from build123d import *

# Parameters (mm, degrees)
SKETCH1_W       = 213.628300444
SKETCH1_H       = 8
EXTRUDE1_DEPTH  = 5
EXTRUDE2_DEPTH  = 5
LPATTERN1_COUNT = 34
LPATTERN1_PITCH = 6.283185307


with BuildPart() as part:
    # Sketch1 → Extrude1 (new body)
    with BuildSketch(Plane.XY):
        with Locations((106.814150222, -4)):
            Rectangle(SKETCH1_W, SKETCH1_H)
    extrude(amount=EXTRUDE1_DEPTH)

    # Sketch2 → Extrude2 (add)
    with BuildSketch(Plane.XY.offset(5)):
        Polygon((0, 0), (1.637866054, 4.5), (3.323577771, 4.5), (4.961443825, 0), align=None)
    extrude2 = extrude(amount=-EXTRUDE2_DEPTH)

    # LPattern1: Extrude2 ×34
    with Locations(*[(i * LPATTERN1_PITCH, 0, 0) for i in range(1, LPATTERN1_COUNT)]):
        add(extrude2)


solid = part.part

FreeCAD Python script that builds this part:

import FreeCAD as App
import Part
import Sketcher
from FreeCAD import Vector
Q = App.Units.Quantity

doc = App.newDocument("Part")
params = doc.addObject("Spreadsheet::Sheet", "Params")
for row, (alias, value) in enumerate([
    ("sketch1_height", "8 mm"),
    ("pad1_length", "5 mm"),
    ("pad2_length", "5 mm"),
    ("linearpattern_pitch", "6.283185 mm"),
], start=1):
    params.set(f"A{row}", alias)
    params.set(f"B{row}", "=" + value)
    params.setAlias(f"B{row}", alias)

body = doc.addObject("PartDesign::Body", "Body")

# Sketch on XY plane
sketch1 = doc.addObject("Sketcher::SketchObject", "Sketch")
body.addObject(sketch1)
sketch1.AttachmentSupport = (doc.XY_Plane, [""])
sketch1.MapMode = "FlatFace"
sketch1.addGeometry(Part.LineSegment(Vector(0, 0, 0), Vector(0, -8, 0)), False)
sketch1.addGeometry(Part.LineSegment(Vector(0, -8, 0), Vector(214, -8, 0)), False)
sketch1.addGeometry(Part.LineSegment(Vector(214, -8, 0), Vector(214, 0, 0)), False)
sketch1.addGeometry(Part.LineSegment(Vector(214, 0, 0), Vector(0, 0, 0)), False)
sketch1.addConstraint(Sketcher.Constraint("Coincident", 0, 2, 1, 1))
sketch1.addConstraint(Sketcher.Constraint("Coincident", 1, 2, 2, 1))
sketch1.addConstraint(Sketcher.Constraint("Coincident", 2, 2, 3, 1))
sketch1.addConstraint(Sketcher.Constraint("Coincident", 3, 2, 0, 1))
sketch1.addConstraint(Sketcher.Constraint("Vertical", 0))
sketch1.addConstraint(Sketcher.Constraint("Horizontal", 1))
sketch1.addConstraint(Sketcher.Constraint("Vertical", 2))
sketch1.addConstraint(Sketcher.Constraint("Horizontal", 3))
sketch1.addConstraint(Sketcher.Constraint("Coincident", 3, 2, -1, 1))
sketch1.addConstraint(Sketcher.Constraint("DistanceY", 0, 2, 0, 1, Q("8 mm")))
sketch1.addConstraint(Sketcher.Constraint("DistanceX", 1, 1, 1, 2, Q("213.6283 mm")))
sketch1.setExpression("Constraints[9]", "Params.sketch1_height")
pad1 = doc.addObject("PartDesign::Pad", "Pad")
body.addObject(pad1)
pad1.Profile = sketch1
pad1.setExpression("Length", "Params.pad1_length")

# Sketch on XY plane
sketch2 = doc.addObject("Sketcher::SketchObject", "Sketch001")
body.addObject(sketch2)
sketch2.AttachmentSupport = (doc.XY_Plane, [""])
sketch2.MapMode = "FlatFace"
sketch2.AttachmentOffset = App.Placement(Vector(0, 0, 5), App.Rotation())
sketch2.addGeometry(Part.LineSegment(Vector(1.6, 4.5, 0), Vector(0, 0, 0)), False)
sketch2.addGeometry(Part.LineSegment(Vector(0, 0, 0), Vector(5, 0, 0)), False)
sketch2.addGeometry(Part.LineSegment(Vector(5, 0, 0), Vector(3.3, 4.5, 0)), False)
sketch2.addGeometry(Part.LineSegment(Vector(3.3, 4.5, 0), Vector(1.6, 4.5, 0)), False)
sketch2.addConstraint(Sketcher.Constraint("Coincident", 0, 2, 1, 1))
sketch2.addConstraint(Sketcher.Constraint("Coincident", 1, 2, 2, 1))
sketch2.addConstraint(Sketcher.Constraint("Coincident", 2, 2, 3, 1))
sketch2.addConstraint(Sketcher.Constraint("Coincident", 3, 2, 0, 1))
sketch2.addConstraint(Sketcher.Constraint("Horizontal", 1))
sketch2.addConstraint(Sketcher.Constraint("Horizontal", 3))
sketch2.addConstraint(Sketcher.Constraint("Coincident", 0, 2, -1, 1))
sketch2.addConstraint(Sketcher.Constraint("Equal", 0, 2))
sketch2.addConstraint(Sketcher.Constraint("Angle", 0, Q("-110 deg")))
sketch2.addConstraint(Sketcher.Constraint("DistanceY", -1, 1, 2, 2, Q("4.5 mm")))
sketch2.addConstraint(Sketcher.Constraint("DistanceX", 3, 2, 3, 1, Q("1.685712 mm")))
pad2 = doc.addObject("PartDesign::Pad", "Pad001")
body.addObject(pad2)
pad2.Profile = sketch2
pad2.setExpression("Length", "Params.pad2_length")
pad2.Reversed = True
doc.recompute()

linearpattern = doc.addObject("PartDesign::LinearPattern", "LinearPattern")
body.addObject(linearpattern)
linearpattern.Originals = [pad2]
linearpattern.Direction = (doc.X_Axis, [""])
linearpattern.Mode = "offset"
linearpattern.setExpression("Offset", "Params.linearpattern_pitch")
linearpattern.Occurrences = 34
body.Tip = linearpattern

doc.recompute()
